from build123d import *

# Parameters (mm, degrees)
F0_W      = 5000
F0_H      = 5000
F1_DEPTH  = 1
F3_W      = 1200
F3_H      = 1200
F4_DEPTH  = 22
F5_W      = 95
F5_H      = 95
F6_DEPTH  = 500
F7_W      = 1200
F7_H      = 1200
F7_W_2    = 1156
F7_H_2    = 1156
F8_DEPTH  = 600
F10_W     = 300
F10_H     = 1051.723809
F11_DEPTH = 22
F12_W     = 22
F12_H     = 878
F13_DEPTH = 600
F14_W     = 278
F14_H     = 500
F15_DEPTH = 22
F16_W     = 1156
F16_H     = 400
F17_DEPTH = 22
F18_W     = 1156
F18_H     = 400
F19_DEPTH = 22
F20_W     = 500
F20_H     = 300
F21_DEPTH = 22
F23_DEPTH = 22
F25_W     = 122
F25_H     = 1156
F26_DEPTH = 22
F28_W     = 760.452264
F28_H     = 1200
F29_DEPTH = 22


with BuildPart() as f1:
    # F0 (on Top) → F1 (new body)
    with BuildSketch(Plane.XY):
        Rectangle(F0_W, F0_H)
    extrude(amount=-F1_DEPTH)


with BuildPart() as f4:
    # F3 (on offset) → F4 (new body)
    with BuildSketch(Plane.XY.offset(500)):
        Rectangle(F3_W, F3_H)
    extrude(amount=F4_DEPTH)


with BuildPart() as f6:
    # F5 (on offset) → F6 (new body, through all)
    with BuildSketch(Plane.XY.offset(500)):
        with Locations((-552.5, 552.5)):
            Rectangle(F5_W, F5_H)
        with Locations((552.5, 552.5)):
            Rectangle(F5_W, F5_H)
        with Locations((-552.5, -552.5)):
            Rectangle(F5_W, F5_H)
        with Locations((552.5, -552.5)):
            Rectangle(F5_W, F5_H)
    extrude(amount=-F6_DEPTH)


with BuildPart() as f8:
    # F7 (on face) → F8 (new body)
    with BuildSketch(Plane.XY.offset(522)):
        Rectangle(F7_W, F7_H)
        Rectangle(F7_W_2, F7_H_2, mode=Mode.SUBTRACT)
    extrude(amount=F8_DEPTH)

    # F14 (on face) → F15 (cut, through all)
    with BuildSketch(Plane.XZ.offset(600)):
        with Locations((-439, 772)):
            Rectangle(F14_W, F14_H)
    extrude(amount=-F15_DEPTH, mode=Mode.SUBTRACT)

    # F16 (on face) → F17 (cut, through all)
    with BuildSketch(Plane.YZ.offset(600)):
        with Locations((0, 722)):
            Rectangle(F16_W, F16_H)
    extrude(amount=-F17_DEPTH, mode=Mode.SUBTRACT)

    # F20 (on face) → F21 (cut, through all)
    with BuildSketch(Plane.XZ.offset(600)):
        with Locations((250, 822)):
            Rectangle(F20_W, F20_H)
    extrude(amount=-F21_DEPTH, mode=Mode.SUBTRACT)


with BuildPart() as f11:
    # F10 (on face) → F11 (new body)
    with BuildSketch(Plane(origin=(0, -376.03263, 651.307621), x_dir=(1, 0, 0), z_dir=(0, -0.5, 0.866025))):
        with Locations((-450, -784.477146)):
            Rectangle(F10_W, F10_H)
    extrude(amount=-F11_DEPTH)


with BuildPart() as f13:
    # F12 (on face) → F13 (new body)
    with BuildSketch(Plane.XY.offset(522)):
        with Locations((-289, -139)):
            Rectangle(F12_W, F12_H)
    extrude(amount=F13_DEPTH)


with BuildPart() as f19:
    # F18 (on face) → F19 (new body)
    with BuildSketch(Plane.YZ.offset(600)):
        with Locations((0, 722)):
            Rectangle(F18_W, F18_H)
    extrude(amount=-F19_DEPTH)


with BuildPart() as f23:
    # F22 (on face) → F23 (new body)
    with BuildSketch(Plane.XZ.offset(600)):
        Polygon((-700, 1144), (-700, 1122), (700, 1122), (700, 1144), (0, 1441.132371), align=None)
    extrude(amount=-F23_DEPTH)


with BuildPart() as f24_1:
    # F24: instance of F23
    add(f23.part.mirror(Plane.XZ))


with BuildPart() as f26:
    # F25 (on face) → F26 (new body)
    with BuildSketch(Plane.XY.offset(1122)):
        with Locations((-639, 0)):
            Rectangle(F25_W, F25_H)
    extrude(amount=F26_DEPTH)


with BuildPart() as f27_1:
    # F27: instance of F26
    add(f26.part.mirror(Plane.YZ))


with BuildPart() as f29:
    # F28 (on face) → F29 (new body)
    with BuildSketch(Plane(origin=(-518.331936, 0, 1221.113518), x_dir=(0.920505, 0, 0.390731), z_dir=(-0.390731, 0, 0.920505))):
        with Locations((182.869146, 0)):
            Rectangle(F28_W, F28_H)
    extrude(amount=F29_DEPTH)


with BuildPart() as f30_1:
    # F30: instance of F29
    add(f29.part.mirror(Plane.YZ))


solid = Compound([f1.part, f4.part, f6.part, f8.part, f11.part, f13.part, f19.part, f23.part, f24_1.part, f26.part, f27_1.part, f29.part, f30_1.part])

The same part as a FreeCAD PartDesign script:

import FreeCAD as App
import Part
import Sketcher
from FreeCAD import Vector
Q = App.Units.Quantity


def add_polygon(sketch, points):
    """Adds a closed chain of lines whose ends are joined by coincident constraints."""
    first, n = sketch.GeometryCount, len(points)
    for a, b in zip(points, points[1:] + points[:1]):
        sketch.addGeometry(Part.LineSegment(App.Vector(*a, 0), App.Vector(*b, 0)), False)
    for i in range(n):
        sketch.addConstraint(Sketcher.Constraint("Coincident", first + i, 2, first + (i + 1) % n, 1))

doc = App.newDocument("Part")
params = doc.addObject("Spreadsheet::Sheet", "Params")
for row, (alias, value) in enumerate([
    ("sketch1_width", "5000 mm"),
    ("pad1_length", "1 mm"),
    ("sketch2_width", "1200 mm"),
    ("pad2_length", "22 mm"),
    ("sketch3_width", "95 mm"),
    ("pad3_length", "500 mm"),
    ("sketch4_width", "1200 mm"),
    ("sketch4_width2", "1156 mm"),
    ("pad4_length", "600 mm"),
    ("sketch5_width", "278 mm"),
    ("sketch5_height", "500 mm"),
    ("pocket1_length", "22 mm"),
    ("sketch6_width", "1156 mm"),
    ("sketch6_height", "400 mm"),
    ("pocket2_length", "22 mm"),
    ("sketch7_width", "500 mm"),
    ("sketch7_height", "300 mm"),
    ("pocket3_length", "22 mm"),
    ("sketch8_width", "300 mm"),
    ("pad5_length", "22 mm"),
    ("sketch9_width", "22 mm"),
    ("sketch9_height", "878 mm"),
    ("pad6_length", "600 mm"),
    ("sketch10_width", "1156 mm"),
    ("sketch10_height", "400 mm"),
    ("pad7_length", "22 mm"),
    ("sketch11_width", "1400 mm"),
    ("sketch11_height", "22 mm"),
    ("pad8_length", "22 mm"),
    ("sketch12_width", "122 mm"),
    ("sketch12_height", "1156 mm"),
    ("pad9_length", "22 mm"),
    ("sketch13_height", "1200 mm"),
    ("pad10_length", "22 mm"),
], start=1):
    params.set(f"A{row}", alias)
    params.set(f"B{row}", "=" + value)
    params.setAlias(f"B{row}", alias)

body = doc.addObject("PartDesign::Body", "Body")

# Sketch on XY plane
sketch1 = body.newObject("Sketcher::SketchObject", "Sketch")
sketch1.AttachmentSupport = (doc.getObject("XY_Plane"), [""])
sketch1.MapMode = "FlatFace"
add_polygon(sketch1, [(-2500, 2500), (-2500, -2500), (2500, -2500), (2500, 2500)])  # lines 0-3
sketch1.addConstraint([
    Sketcher.Constraint("Vertical", 0),
    Sketcher.Constraint("Horizontal", 1),
    Sketcher.Constraint("Vertical", 2),
    Sketcher.Constraint("Horizontal", 3),
    Sketcher.Constraint("Symmetric", 0, 2, 2, 2, -1, 1),
    Sketcher.Constraint("Equal", 3, 0),
    Sketcher.Constraint("DistanceX", 1, 1, 1, 2, Q("5000 mm")),
])
sketch1.setExpression("Constraints[10]", "Params.sketch1_width")
pad1 = body.newObject("PartDesign::Pad", "Pad")
pad1.Profile = sketch1
pad1.setExpression("Length", "Params.pad1_length")
pad1.Reversed = True
body2 = doc.addObject("PartDesign::Body", "Body001")

# Sketch on XY plane
sketch2 = body2.newObject("Sketcher::SketchObject", "Sketch001")
sketch2.AttachmentSupport = (doc.getObject("XY_Plane001"), [""])
sketch2.MapMode = "FlatFace"
sketch2.AttachmentOffset = App.Placement(Vector(0, 0, 500), App.Rotation())
add_polygon(sketch2, [(-600, 600), (-600, -600), (600, -600), (600, 600)])  # lines 0-3
sketch2.addConstraint([
    Sketcher.Constraint("Vertical", 0),
    Sketcher.Constraint("Horizontal", 1),
    Sketcher.Constraint("Vertical", 2),
    Sketcher.Constraint("Horizontal", 3),
    Sketcher.Constraint("Symmetric", 0, 2, 2, 2, -1, 1),
    Sketcher.Constraint("Equal", 3, 0),
    Sketcher.Constraint("DistanceX", 1, 1, 1, 2, Q("1200 mm")),
])
sketch2.setExpression("Constraints[10]", "Params.sketch2_width")
pad2 = body2.newObject("PartDesign::Pad", "Pad001")
pad2.Profile = sketch2
pad2.setExpression("Length", "Params.pad2_length")
body3 = doc.addObject("PartDesign::Body", "Body002")
body3.AllowCompound = True

# Sketch on XY plane
sketch3 = body3.newObject("Sketcher::SketchObject", "Sketch002")
sketch3.AttachmentSupport = (doc.getObject("XY_Plane002"), [""])
sketch3.MapMode = "FlatFace"
sketch3.AttachmentOffset = App.Placement(Vector(0, 0, 500), App.Rotation())
add_polygon(sketch3, [(-600, 600), (-600, 505), (-505, 505), (-505, 600)])  # lines 0-3
add_polygon(sketch3, [(505, 600), (505, 505), (600, 505), (600, 600)])  # lines 4-7
add_polygon(sketch3, [(-600, -505), (-600, -600), (-505, -600), (-505, -505)])  # lines 8-11
add_polygon(sketch3, [(505, -505), (505, -600), (600, -600), (600, -505)])  # lines 12-15
sketch3.addConstraint([
    Sketcher.Constraint("Vertical", 0),
    Sketcher.Constraint("Horizontal", 1),
    Sketcher.Constraint("Vertical", 2),
    Sketcher.Constraint("Horizontal", 3),
    Sketcher.Constraint("Vertical", 4),
    Sketcher.Constraint("Horizontal", 5),
    Sketcher.Constraint("Vertical", 6),
    Sketcher.Constraint("Horizontal", 7),
    Sketcher.Constraint("Vertical", 8),
    Sketcher.Constraint("Horizontal", 9),
    Sketcher.Constraint("Vertical", 10),
    Sketcher.Constraint("Horizontal", 11),
    Sketcher.Constraint("Vertical", 12),
    Sketcher.Constraint("Horizontal", 13),
    Sketcher.Constraint("Vertical", 14),
    Sketcher.Constraint("Horizontal", 15),
    Sketcher.Constraint("Symmetric", 6, 2, 8, 2, -1, 1),
    Sketcher.Constraint("Symmetric", 4, 2, 10, 2, -1, 1),
    Sketcher.Constraint("Symmetric", 2, 2, 12, 2, -1, 1),
    Sketcher.Constraint("Symmetric", 0, 2, 14, 2, -1, 1),
    Sketcher.Constraint("Symmetric", 1, 2, 4, 2, -2),
    Sketcher.Constraint("Symmetric", 3, 2, 6, 2, -2),
    Sketcher.Constraint("Equal", 15, 0),
    Sketcher.Constraint("DistanceX", 1, 1, 1, 2, Q("95 mm")),
    Sketcher.Constraint("DistanceX", 0, 2, -1, 1, Q("600 mm")),
    Sketcher.Constraint("DistanceY", -1, 1, 0, 2, Q("505 mm")),
])
sketch3.setExpression("Constraints[39]", "Params.sketch3_width")
pad3 = body3.newObject("PartDesign::Pad", "Pad002")
pad3.Profile = sketch3
pad3.setExpression("Length", "Params.pad3_length")
pad3.Reversed = True
body4 = doc.addObject("PartDesign::Body", "Body003")

# Sketch on XY plane
sketch4 = body4.newObject("Sketcher::SketchObject", "Sketch003")
sketch4.AttachmentSupport = (doc.getObject("XY_Plane003"), [""])
sketch4.MapMode = "FlatFace"
sketch4.AttachmentOffset = App.Placement(Vector(0, 0, 522), App.Rotation())
add_polygon(sketch4, [(-600, 600), (-600, -600), (600, -600), (600, 600)])  # lines 0-3
add_polygon(sketch4, [(578, -578), (-578, -578), (-578, 578), (578, 578)])  # lines 4-7
sketch4.addConstraint([
    Sketcher.Constraint("Vertical", 0),
    Sketcher.Constraint("Horizontal", 1),
    Sketcher.Constraint("Vertical", 2),
    Sketcher.Constraint("Horizontal", 3),
    Sketcher.Constraint("Horizontal", 4),
    Sketcher.Constraint("Vertical", 5),
    Sketcher.Constraint("Horizontal", 6),
    Sketcher.Constraint("Vertical", 7),
    Sketcher.Constraint("Symmetric", 0, 2, 2, 2, -1, 1),
    Sketcher.Constraint("Symmetric", 4, 2, 6, 2, -1, 1),
    Sketcher.Constraint("Equal", 3, 0),
    Sketcher.Constraint("Equal", 6, 5),
    Sketcher.Constraint("DistanceX", 1, 1, 1, 2, Q("1200 mm")),
    Sketcher.Constraint("DistanceX", 4, 2, 4, 1, Q("1156 mm")),
])
sketch4.setExpression("Constraints[20]", "Params.sketch4_width")
sketch4.setExpression("Constraints[21]", "Params.sketch4_width2")
pad4 = body4.newObject("PartDesign::Pad", "Pad003")
pad4.Profile = sketch4
pad4.setExpression("Length", "Params.pad4_length")

# Sketch on XZ plane
sketch5 = body4.newObject("Sketcher::SketchObject", "Sketch004")
sketch5.AttachmentSupport = (doc.getObject("XZ_Plane003"), [""])
sketch5.MapMode = "FlatFace"
sketch5.AttachmentOffset = App.Placement(Vector(0, 0, 600), App.Rotation())
add_polygon(sketch5, [(-578, 1022), (-578, 522), (-300, 522), (-300, 1022)])  # lines 0-3
sketch5.addConstraint([
    Sketcher.Constraint("Vertical", 0),
    Sketcher.Constraint("Horizontal", 1),
    Sketcher.Constraint("Vertical", 2),
    Sketcher.Constraint("Horizontal", 3),
    Sketcher.Constraint("DistanceX", 1, 1, 1, 2, Q("278 mm")),
    Sketcher.Constraint("DistanceY", 0, 2, 0, 1, Q("500 mm")),
    Sketcher.Constraint("DistanceX", 0, 2, -1, 1, Q("578 mm")),
    Sketcher.Constraint("DistanceY", -1, 1, 0, 2, Q("522 mm")),
])
sketch5.setExpression("Constraints[8]", "Params.sketch5_width")
sketch5.setExpression("Constraints[9]", "Params.sketch5_height")
pocket1 = body4.newObject("PartDesign::Pocket", "Pocket")
pocket1.Profile = sketch5
pocket1.setExpression("Length", "Params.pocket1_length")

# Sketch on YZ plane
sketch6 = body4.newObject("Sketcher::SketchObject", "Sketch005")
sketch6.AttachmentSupport = (doc.getObject("YZ_Plane003"), [""])
sketch6.MapMode = "FlatFace"
sketch6.AttachmentOffset = App.Placement(Vector(0, 0, 600), App.Rotation())
add_polygon(sketch6, [(-578, 922), (-578, 522), (578, 522), (578, 922)])  # lines 0-3
sketch6.addConstraint([
    Sketcher.Constraint("Vertical", 0),
    Sketcher.Constraint("Horizontal", 1),
    Sketcher.Constraint("Vertical", 2),
    Sketcher.Constraint("Horizontal", 3),
    Sketcher.Constraint("DistanceX", 1, 1, 1, 2, Q("1156 mm")),
    Sketcher.Constraint("DistanceY", 0, 2, 0, 1, Q("400 mm")),
    Sketcher.Constraint("DistanceX", 0, 2, -1, 1, Q("578 mm")),
    Sketcher.Constraint("DistanceY", -1, 1, 0, 2, Q("522 mm")),
])
sketch6.setExpression("Constraints[8]", "Params.sketch6_width")
sketch6.setExpression("Constraints[9]", "Params.sketch6_height")
pocket2 = body4.newObject("PartDesign::Pocket", "Pocket001")
pocket2.Profile = sketch6
pocket2.setExpression("Length", "Params.pocket2_length")

# Sketch on XZ plane
sketch7 = body4.newObject("Sketcher::SketchObject", "Sketch006")
sketch7.AttachmentSupport = (doc.getObject("XZ_Plane003"), [""])
sketch7.MapMode = "FlatFace"
sketch7.AttachmentOffset = App.Placement(Vector(0, 0, 600), App.Rotation())
add_polygon(sketch7, [(0, 972), (0, 672), (500, 672), (500, 972)])  # lines 0-3
sketch7.addConstraint([
    Sketcher.Constraint("Vertical", 0),
    Sketcher.Constraint("Horizontal", 1),
    Sketcher.Constraint("Vertical", 2),
    Sketcher.Constraint("Horizontal", 3),
    Sketcher.Constraint("PointOnObject", 0, 2, -2),
    Sketcher.Constraint("DistanceX", 1, 1, 1, 2, Q("500 mm")),
    Sketcher.Constraint("DistanceY", 0, 2, 0, 1, Q("300 mm")),
    Sketcher.Constraint("DistanceY", -1, 1, 0, 2, Q("672 mm")),
])
sketch7.setExpression("Constraints[9]", "Params.sketch7_width")
sketch7.setExpression("Constraints[10]", "Params.sketch7_height")
pocket3 = body4.newObject("PartDesign::Pocket", "Pocket002")
pocket3.Profile = sketch7
pocket3.setExpression("Length", "Params.pocket3_length")
body5 = doc.addObject("PartDesign::Body", "Body004")

# Sketch on an angled plane
sketch8 = body5.newObject("Sketcher::SketchObject", "Sketch007")
sketch8.Placement = App.Placement(Vector(0, -376.03263, 651.307621), App.Rotation(Vector(1, 0, 0), Vector(0, 0.866025303, 0.500000175), Vector(0, -0.500000175, 0.866025303), "ZXY"))
add_polygon(sketch8, [(-600, -258.615242), (-600, -1310.339051), (-300, -1310.339051), (-300, -258.615242)])  # lines 0-3
sketch8.addConstraint([
    Sketcher.Constraint("Vertical", 0),
    Sketcher.Constraint("Horizontal", 1),
    Sketcher.Constraint("Vertical", 2),
    Sketcher.Constraint("Horizontal", 3),
    Sketcher.Constraint("DistanceX", 1, 1, 1, 2, Q("300 mm")),
    Sketcher.Constraint("DistanceX", 0, 2, -1, 1, Q("600 mm")),
    Sketcher.Constraint("DistanceY", 0, 2, 0, 1, Q("1051.723809 mm")),
    Sketcher.Constraint("DistanceY", 0, 2, -1, 1, Q("1310.339051 mm")),
])
sketch8.setExpression("Constraints[8]", "Params.sketch8_width")
pad5 = body5.newObject("PartDesign::Pad", "Pad004")
pad5.Profile = sketch8
pad5.setExpression("Length", "Params.pad5_length")
pad5.Reversed = True
body6 = doc.addObject("PartDesign::Body", "Body005")

# Sketch on XY plane
sketch9 = body6.newObject("Sketcher::SketchObject", "Sketch008")
sketch9.AttachmentSupport = (doc.getObject("XY_Plane005"), [""])
sketch9.MapMode = "FlatFace"
sketch9.AttachmentOffset = App.Placement(Vector(0, 0, 522), App.Rotation())
add_polygon(sketch9, [(-300, 300), (-300, -578), (-278, -578), (-278, 300)])  # lines 0-3
sketch9.addConstraint([
    Sketcher.Constraint("Vertical", 0),
    Sketcher.Constraint("Horizontal", 1),
    Sketcher.Constraint("Vertical", 2),
    Sketcher.Constraint("Horizontal", 3),
    Sketcher.Constraint("DistanceX", 1, 1, 1, 2, Q("22 mm")),
    Sketcher.Constraint("DistanceY", 0, 2, 0, 1, Q("878 mm")),
    Sketcher.Constraint("DistanceX", 0, 2, -1, 1, Q("300 mm")),
    Sketcher.Constraint("DistanceY", 0, 2, -1, 1, Q("578 mm")),
])
sketch9.setExpression("Constraints[8]", "Params.sketch9_width")
sketch9.setExpression("Constraints[9]", "Params.sketch9_height")
pad6 = body6.newObject("PartDesign::Pad", "Pad005")
pad6.Profile = sketch9
pad6.setExpression("Length", "Params.pad6_length")
body7 = doc.addObject("PartDesign::Body", "Body006")

# Sketch on YZ plane
sketch10 = body7.newObject("Sketcher::SketchObject", "Sketch009")
sketch10.AttachmentSupport = (doc.getObject("YZ_Plane006"), [""])
sketch10.MapMode = "FlatFace"
sketch10.AttachmentOffset = App.Placement(Vector(0, 0, 600), App.Rotation())
add_polygon(sketch10, [(-578, 922), (-578, 522), (578, 522), (578, 922)])  # lines 0-3
sketch10.addConstraint([
    Sketcher.Constraint("Vertical", 0),
    Sketcher.Constraint("Horizontal", 1),
    Sketcher.Constraint("Vertical", 2),
    Sketcher.Constraint("Horizontal", 3),
    Sketcher.Constraint("DistanceX", 1, 1, 1, 2, Q("1156 mm")),
    Sketcher.Constraint("DistanceY", 0, 2, 0, 1, Q("400 mm")),
    Sketcher.Constraint("DistanceX", 0, 2, -1, 1, Q("578 mm")),
    Sketcher.Constraint("DistanceY", -1, 1, 0, 2, Q("522 mm")),
])
sketch10.setExpression("Constraints[8]", "Params.sketch10_width")
sketch10.setExpression("Constraints[9]", "Params.sketch10_height")
pad7 = body7.newObject("PartDesign::Pad", "Pad006")
pad7.Profile = sketch10
pad7.setExpression("Length", "Params.pad7_length")
pad7.Reversed = True
body8 = doc.addObject("PartDesign::Body", "Body007")

# Sketch on XZ plane
sketch11 = body8.newObject("Sketcher::SketchObject", "Sketch010")
sketch11.AttachmentSupport = (doc.getObject("XZ_Plane007"), [""])
sketch11.MapMode = "FlatFace"
sketch11.AttachmentOffset = App.Placement(Vector(0, 0, 600), App.Rotation())
add_polygon(sketch11, [(-700, 1144), (-700, 1122), (700, 1122), (700, 1144), (0, 1441.132371)])  # lines 0-4
sketch11.addConstraint([
    Sketcher.Constraint("Vertical", 0),
    Sketcher.Constraint("Horizontal", 1),
    Sketcher.Constraint("Vertical", 2),
    Sketcher.Constraint("Symmetric", 2, 2, 4, 2, -2),
    Sketcher.Constraint("PointOnObject", 3, 2, -2),
    Sketcher.Constraint("DistanceX", 1, 1, 1, 2, Q("1400 mm")),
    Sketcher.Constraint("DistanceY", 0, 2, 0, 1, Q("22 mm")),
    Sketcher.Constraint("Angle", 3, Q("157 deg")),
    Sketcher.Constraint("DistanceY", -1, 1, 0, 2, Q("1122 mm")),
])
sketch11.setExpression("Constraints[10]", "Params.sketch11_width")
sketch11.setExpression("Constraints[11]", "Params.sketch11_height")
pad8 = body8.newObject("PartDesign::Pad", "Pad007")
pad8.Profile = sketch11
pad8.setExpression("Length", "Params.pad8_length")
pad8.Reversed = True
body9 = doc.addObject("PartDesign::Body", "Body008")
doc.recompute()

mirroring = doc.addObject("Part::Mirroring", "Mirroring")
mirroring.Source = body8
mirroring.Base = Vector(0, 0, 0)
mirroring.Normal = Vector(0, -1, 0)
body9.BaseFeature = mirroring
doc.recompute()
body10 = doc.addObject("PartDesign::Body", "Body009")

# Sketch on XY plane
sketch12 = body10.newObject("Sketcher::SketchObject", "Sketch011")
sketch12.AttachmentSupport = (doc.getObject("XY_Plane009"), [""])
sketch12.MapMode = "FlatFace"
sketch12.AttachmentOffset = App.Placement(Vector(0, 0, 1122), App.Rotation())
add_polygon(sketch12, [(-700, 578), (-700, -578), (-578, -578), (-578, 578)])  # lines 0-3
sketch12.addConstraint([
    Sketcher.Constraint("Vertical", 0),
    Sketcher.Constraint("Horizontal", 1),
    Sketcher.Constraint("Vertical", 2),
    Sketcher.Constraint("Horizontal", 3),
    Sketcher.Constraint("DistanceX", 1, 1, 1, 2, Q("122 mm")),
    Sketcher.Constraint("DistanceY", 0, 2, 0, 1, Q("1156 mm")),
    Sketcher.Constraint("DistanceX", 0, 2, -1, 1, Q("700 mm")),
    Sketcher.Constraint("DistanceY", 0, 2, -1, 1, Q("578 mm")),
])
sketch12.setExpression("Constraints[8]", "Params.sketch12_width")
sketch12.setExpression("Constraints[9]", "Params.sketch12_height")
pad9 = body10.newObject("PartDesign::Pad", "Pad008")
pad9.Profile = sketch12
pad9.setExpression("Length", "Params.pad9_length")
body11 = doc.addObject("PartDesign::Body", "Body010")
doc.recompute()

mirroring2 = doc.addObject("Part::Mirroring", "Mirroring001")
mirroring2.Source = body10
mirroring2.Base = Vector(0, 0, 0)
mirroring2.Normal = Vector(1, 0, 0)
body11.BaseFeature = mirroring2
doc.recompute()
body12 = doc.addObject("PartDesign::Body", "Body011")

# Sketch on an angled plane
sketch13 = body12.newObject("Sketcher::SketchObject", "Sketch012")
sketch13.Placement = App.Placement(Vector(-518.331936, 0, 1221.113518), App.Rotation(Vector(0.920504922, 0, 0.390730967), Vector(0, 1, 0), Vector(-0.390730967, 0, 0.920504922), "ZXY"))
add_polygon(sketch13, [(-197.356986, 600), (-197.356986, -600), (563.095278, -600), (563.095278, 600)])  # lines 0-3
sketch13.addConstraint([
    Sketcher.Constraint("Vertical", 0),
    Sketcher.Constraint("Horizontal", 1),
    Sketcher.Constraint("Vertical", 2),
    Sketcher.Constraint("Horizontal", 3),
    Sketcher.Constraint("DistanceY", 0, 2, 0, 1, Q("1200 mm")),
    Sketcher.Constraint("DistanceY", 0, 2, -1, 1, Q("600 mm")),
    Sketcher.Constraint("DistanceX", 1, 1, 1, 2, Q("760.452264 mm")),
    Sketcher.Constraint("DistanceX", 0, 2, -1, 1, Q("197.356986 mm")),
])
sketch13.setExpression("Constraints[8]", "Params.sketch13_height")
pad10 = body12.newObject("PartDesign::Pad", "Pad009")
pad10.Profile = sketch13
pad10.setExpression("Length", "Params.pad10_length")
body13 = doc.addObject("PartDesign::Body", "Body012")
doc.recompute()

mirroring3 = doc.addObject("Part::Mirroring", "Mirroring002")
mirroring3.Source = body12
mirroring3.Base = Vector(0, 0, 0)
mirroring3.Normal = Vector(1, 0, 0)
body13.BaseFeature = mirroring3
doc.recompute()
mirroring.Visibility = False
mirroring2.Visibility = False
mirroring3.Visibility = False

doc.recompute()
